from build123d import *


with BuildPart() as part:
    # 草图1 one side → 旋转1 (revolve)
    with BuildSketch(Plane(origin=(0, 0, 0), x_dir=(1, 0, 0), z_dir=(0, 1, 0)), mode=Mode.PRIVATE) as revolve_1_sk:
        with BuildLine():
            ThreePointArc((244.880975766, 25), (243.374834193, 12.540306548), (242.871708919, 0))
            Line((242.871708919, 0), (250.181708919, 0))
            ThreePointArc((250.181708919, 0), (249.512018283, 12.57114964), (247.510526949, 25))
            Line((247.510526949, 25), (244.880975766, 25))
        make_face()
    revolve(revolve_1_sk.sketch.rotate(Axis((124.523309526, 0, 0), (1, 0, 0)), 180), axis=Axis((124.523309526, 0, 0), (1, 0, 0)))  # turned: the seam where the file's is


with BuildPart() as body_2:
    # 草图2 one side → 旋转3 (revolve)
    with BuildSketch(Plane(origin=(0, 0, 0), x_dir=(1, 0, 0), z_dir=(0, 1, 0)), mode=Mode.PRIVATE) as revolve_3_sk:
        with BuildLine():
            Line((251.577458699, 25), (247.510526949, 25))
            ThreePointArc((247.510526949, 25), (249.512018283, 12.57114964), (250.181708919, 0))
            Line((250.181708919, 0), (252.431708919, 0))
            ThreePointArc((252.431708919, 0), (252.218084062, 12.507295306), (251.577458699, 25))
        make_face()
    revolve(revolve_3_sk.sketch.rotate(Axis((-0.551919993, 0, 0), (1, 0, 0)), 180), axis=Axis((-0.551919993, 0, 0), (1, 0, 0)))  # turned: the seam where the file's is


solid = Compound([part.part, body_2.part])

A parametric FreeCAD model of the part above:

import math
import FreeCAD as App
import Part
import Sketcher
from FreeCAD import Vector

doc = App.newDocument("Part")
body = doc.addObject("PartDesign::Body", "Body")

sketch1 = doc.addObject("Sketcher::SketchObject", "Sketch")
body.addObject(sketch1)
sketch1.AttachmentSupport = (doc.XZ_Plane, [""])
sketch1.MapMode = "FlatFace"
sketch1.addGeometry([
    Part.ArcOfCircle(Part.Circle(Vector(399.405709, 0, 0), Vector(0, 0, 1), 156.534), math.radians(180), math.radians(189.190047)),
    Part.LineSegment(Vector(242.871709, 0, 0), Vector(250.181709, 0, 0)),
    Part.ArcOfCircle(Part.Circle(Vector(131.856709, 0, 0), Vector(0, 0, 1), 118.325), math.radians(-12.19752), math.radians(0)),
    Part.LineSegment(Vector(247.510527, -25, 0), Vector(244.880976, -25, 0)),
], False)
sketch1.addConstraint([
    Sketcher.Constraint("Coincident", 0, 1, 1, 1),
    Sketcher.Constraint("Coincident", 1, 2, 2, 2),
    Sketcher.Constraint("Coincident", 2, 1, 3, 1),
    Sketcher.Constraint("Coincident", 3, 2, 0, 2),
    Sketcher.Constraint("Horizontal", 1),
    Sketcher.Constraint("Horizontal", 3),
    Sketcher.Constraint("PointOnObject", 0, 3, -1),
    Sketcher.Constraint("PointOnObject", 2, 3, -1),
    Sketcher.Constraint("PointOnObject", 0, 1, -1),
    Sketcher.Constraint("DistanceY", 2, 1, -1, 1, 25.0),
    Sketcher.Constraint("Radius", 0, 156.534),
    Sketcher.Constraint("Radius", 2, 118.325),
    Sketcher.Constraint("DistanceX", 1, 1, 1, 2, 7.31),
    Sketcher.Constraint("DistanceX", -1, 1, 0, 3, 399.405709),
])
revolution = doc.addObject("PartDesign::Revolution", "Revolution")
body.addObject(revolution)
revolution.Profile = sketch1
revolution.ReferenceAxis = (sketch1, ["H_Axis"])
revolution.Angle = 360
body2 = doc.addObject("PartDesign::Body", "Body001")

sketch2 = doc.addObject("Sketcher::SketchObject", "Sketch001")
body2.addObject(sketch2)
sketch2.AttachmentSupport = (doc.getObject("XZ_Plane001"), [""])
sketch2.MapMode = "FlatFace"
sketch2.addGeometry([
    Part.LineSegment(Vector(251.577459, -25, 0), Vector(247.510527, -25, 0)),
    Part.ArcOfCircle(Part.Circle(Vector(131.856709, 0, 0), Vector(0, 0, 1), 118.325), math.radians(-12.19752), math.radians(0)),
    Part.LineSegment(Vector(250.181709, 0, 0), Vector(252.431709, 0, 0)),
    Part.ArcOfCircle(Part.Circle(Vector(-113.813291, 0, 0), Vector(0, 0, 1), 366.245), math.radians(-3.914072), math.radians(0)),
], False)
sketch2.addConstraint([
    Sketcher.Constraint("Coincident", 0, 2, 1, 1),
    Sketcher.Constraint("Coincident", 1, 2, 2, 1),
    Sketcher.Constraint("Coincident", 2, 2, 3, 2),
    Sketcher.Constraint("Coincident", 3, 1, 0, 1),
    Sketcher.Constraint("Horizontal", 0),
    Sketcher.Constraint("Horizontal", 2),
    Sketcher.Constraint("PointOnObject", 1, 3, -1),
    Sketcher.Constraint("PointOnObject", 3, 3, -1),
    Sketcher.Constraint("PointOnObject", 1, 2, -1),
    Sketcher.Constraint("DistanceY", 0, 2, -1, 1, 25.0),
    Sketcher.Constraint("Radius", 1, 118.325),
    Sketcher.Constraint("Radius", 3, 366.245),
    Sketcher.Constraint("DistanceX", 2, 1, 2, 2, 2.25),
    Sketcher.Constraint("DistanceX", -1, 1, 1, 3, 131.856709),
])
revolution2 = doc.addObject("PartDesign::Revolution", "Revolution001")
body2.addObject(revolution2)
revolution2.Profile = sketch2
revolution2.ReferenceAxis = (sketch2, ["H_Axis"])
revolution2.Angle = 360

doc.recompute()
